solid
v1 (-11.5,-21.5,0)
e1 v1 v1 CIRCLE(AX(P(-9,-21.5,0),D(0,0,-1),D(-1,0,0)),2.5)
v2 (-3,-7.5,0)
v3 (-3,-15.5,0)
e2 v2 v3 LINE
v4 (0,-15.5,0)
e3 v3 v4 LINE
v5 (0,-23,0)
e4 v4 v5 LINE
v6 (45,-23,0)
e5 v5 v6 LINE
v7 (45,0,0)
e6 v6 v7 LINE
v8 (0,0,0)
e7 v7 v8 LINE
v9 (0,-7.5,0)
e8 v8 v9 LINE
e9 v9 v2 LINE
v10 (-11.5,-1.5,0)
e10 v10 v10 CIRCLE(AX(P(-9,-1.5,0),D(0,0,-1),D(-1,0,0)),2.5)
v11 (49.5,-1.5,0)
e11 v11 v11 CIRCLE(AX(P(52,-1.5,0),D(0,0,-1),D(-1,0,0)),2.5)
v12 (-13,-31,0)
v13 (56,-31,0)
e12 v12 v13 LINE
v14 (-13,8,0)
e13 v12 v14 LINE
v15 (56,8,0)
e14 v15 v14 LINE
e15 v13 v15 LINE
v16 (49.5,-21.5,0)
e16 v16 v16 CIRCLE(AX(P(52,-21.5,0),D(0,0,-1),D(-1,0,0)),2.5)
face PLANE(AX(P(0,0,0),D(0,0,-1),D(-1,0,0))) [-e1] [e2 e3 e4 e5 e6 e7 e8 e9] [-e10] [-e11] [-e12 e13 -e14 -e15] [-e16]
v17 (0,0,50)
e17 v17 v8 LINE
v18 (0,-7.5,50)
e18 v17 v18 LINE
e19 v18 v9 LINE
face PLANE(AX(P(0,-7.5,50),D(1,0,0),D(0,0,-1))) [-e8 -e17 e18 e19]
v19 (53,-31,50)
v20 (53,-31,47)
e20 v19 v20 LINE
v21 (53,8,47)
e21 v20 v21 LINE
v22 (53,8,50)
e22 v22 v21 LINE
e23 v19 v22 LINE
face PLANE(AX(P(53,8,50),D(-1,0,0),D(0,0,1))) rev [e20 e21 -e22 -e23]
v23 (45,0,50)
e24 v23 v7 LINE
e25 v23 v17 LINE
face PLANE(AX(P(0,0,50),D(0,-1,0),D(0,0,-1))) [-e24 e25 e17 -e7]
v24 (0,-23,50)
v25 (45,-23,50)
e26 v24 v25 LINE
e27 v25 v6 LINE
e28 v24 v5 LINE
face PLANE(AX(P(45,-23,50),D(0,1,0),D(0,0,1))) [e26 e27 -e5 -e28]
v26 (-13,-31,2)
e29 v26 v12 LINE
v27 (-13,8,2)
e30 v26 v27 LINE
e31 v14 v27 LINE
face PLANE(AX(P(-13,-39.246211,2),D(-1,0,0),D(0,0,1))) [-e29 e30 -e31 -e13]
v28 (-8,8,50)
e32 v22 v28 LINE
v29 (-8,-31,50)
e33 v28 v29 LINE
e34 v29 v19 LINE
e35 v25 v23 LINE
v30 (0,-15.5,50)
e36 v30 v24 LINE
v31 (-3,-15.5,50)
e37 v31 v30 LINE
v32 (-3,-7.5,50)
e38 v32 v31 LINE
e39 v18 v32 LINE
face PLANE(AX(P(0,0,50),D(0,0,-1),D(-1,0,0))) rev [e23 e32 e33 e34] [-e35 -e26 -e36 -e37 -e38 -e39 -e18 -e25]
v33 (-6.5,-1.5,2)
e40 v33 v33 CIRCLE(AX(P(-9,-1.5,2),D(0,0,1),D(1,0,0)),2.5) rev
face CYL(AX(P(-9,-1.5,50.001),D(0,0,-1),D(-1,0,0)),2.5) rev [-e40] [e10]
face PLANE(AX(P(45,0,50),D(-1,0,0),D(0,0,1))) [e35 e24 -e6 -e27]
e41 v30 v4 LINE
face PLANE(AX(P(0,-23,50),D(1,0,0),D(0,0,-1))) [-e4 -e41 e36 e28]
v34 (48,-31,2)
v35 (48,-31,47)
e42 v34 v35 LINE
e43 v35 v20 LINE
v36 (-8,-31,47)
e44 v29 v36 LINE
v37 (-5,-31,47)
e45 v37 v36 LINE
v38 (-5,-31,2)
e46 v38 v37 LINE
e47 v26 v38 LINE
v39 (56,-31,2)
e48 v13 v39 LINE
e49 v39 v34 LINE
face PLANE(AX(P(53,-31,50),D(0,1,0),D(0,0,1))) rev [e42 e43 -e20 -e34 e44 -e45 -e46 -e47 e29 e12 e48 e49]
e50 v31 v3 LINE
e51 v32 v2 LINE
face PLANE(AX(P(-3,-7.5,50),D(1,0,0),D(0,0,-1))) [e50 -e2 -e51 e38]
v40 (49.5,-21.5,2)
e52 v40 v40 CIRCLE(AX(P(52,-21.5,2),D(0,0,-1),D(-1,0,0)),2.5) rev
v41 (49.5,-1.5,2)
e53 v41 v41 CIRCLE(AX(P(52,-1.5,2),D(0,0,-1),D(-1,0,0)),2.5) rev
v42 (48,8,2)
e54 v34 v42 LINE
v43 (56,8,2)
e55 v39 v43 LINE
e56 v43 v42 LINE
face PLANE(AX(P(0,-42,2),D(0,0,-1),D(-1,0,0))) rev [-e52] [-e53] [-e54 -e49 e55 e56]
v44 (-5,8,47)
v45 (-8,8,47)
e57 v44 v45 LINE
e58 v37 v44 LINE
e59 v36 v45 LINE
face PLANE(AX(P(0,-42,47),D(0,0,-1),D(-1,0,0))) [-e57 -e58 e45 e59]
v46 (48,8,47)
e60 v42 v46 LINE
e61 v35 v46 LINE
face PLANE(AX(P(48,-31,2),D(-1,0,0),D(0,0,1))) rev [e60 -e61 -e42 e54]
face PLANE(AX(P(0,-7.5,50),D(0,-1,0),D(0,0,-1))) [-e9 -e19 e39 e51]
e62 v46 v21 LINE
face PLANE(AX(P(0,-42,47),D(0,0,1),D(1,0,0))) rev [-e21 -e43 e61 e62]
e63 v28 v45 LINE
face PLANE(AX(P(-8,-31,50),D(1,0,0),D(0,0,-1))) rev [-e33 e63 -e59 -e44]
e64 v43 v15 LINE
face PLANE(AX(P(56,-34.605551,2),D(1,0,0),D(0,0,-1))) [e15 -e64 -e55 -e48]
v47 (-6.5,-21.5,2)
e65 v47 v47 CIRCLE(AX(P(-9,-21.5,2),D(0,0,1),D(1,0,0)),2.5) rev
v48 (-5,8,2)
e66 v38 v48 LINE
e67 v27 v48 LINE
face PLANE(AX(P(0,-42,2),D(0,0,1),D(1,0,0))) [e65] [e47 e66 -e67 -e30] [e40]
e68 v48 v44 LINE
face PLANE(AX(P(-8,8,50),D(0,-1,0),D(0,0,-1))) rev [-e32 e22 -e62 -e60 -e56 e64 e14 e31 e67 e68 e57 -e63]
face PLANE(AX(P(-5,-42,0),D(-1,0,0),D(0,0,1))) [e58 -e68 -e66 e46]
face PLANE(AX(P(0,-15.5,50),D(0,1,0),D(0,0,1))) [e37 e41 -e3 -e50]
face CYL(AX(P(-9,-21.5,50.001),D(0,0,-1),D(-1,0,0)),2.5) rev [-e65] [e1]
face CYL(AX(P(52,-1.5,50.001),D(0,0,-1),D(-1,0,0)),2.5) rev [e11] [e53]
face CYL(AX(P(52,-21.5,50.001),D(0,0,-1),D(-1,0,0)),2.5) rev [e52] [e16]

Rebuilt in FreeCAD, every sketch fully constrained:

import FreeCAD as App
import Part
import Sketcher
Q = App.Units.Quantity


def add_polygon(sketch, points):
    """Adds a closed chain of lines whose ends are joined by coincident constraints."""
    first, n = sketch.GeometryCount, len(points)
    for a, b in zip(points, points[1:] + points[:1]):
        sketch.addGeometry(Part.LineSegment(App.Vector(*a, 0), App.Vector(*b, 0)), False)
    for i in range(n):
        sketch.addConstraint(Sketcher.Constraint("Coincident", first + i, 2, first + (i + 1) % n, 1))

doc = App.newDocument("Part")
body = doc.addObject("PartDesign::Body", "Body")

# Sketch on XY plane
sketch1 = body.newObject("Sketcher::SketchObject", "Sketch")
sketch1.AttachmentSupport = (doc.getObject("XY_Plane"), [""])
sketch1.MapMode = "FlatFace"
add_polygon(sketch1, [(53, 8), (-8, 8), (-8, -31), (53, -31)])  # lines 0-3
add_polygon(sketch1, [(0, 0), (45, 0), (45, -23), (0, -23), (0, -15.5), (-3, -15.5), (-3, -7.5), (0, -7.5)])  # lines 4-11
sketch1.addConstraint(Sketcher.Constraint("Horizontal", 0))
sketch1.addConstraint(Sketcher.Constraint("Vertical", 1))
sketch1.addConstraint(Sketcher.Constraint("Horizontal", 2))
sketch1.addConstraint(Sketcher.Constraint("Vertical", 3))
sketch1.addConstraint(Sketcher.Constraint("Horizontal", 4))
sketch1.addConstraint(Sketcher.Constraint("Vertical", 5))
sketch1.addConstraint(Sketcher.Constraint("Horizontal", 6))
sketch1.addConstraint(Sketcher.Constraint("Vertical", 7))
sketch1.addConstraint(Sketcher.Constraint("Horizontal", 8))
sketch1.addConstraint(Sketcher.Constraint("Vertical", 9))
sketch1.addConstraint(Sketcher.Constraint("Horizontal", 10))
sketch1.addConstraint(Sketcher.Constraint("Vertical", 11))
sketch1.addConstraint(Sketcher.Constraint("Coincident", 11, 2, -1, 1))
sketch1.addConstraint(Sketcher.Constraint("PointOnObject", 6, 2, -2))
sketch1.addConstraint(Sketcher.Constraint("Equal", 7, 11))
sketch1.addConstraint(Sketcher.Constraint("DistanceX", 0, 2, 0, 1, Q("61 mm")))
sketch1.addConstraint(Sketcher.Constraint("DistanceX", 4, 1, 4, 2, Q("45 mm")))
sketch1.addConstraint(Sketcher.Constraint("DistanceX", 8, 2, 8, 1, Q("3 mm")))
sketch1.addConstraint(Sketcher.Constraint("DistanceY", 1, 2, 1, 1, Q("39 mm")))
sketch1.addConstraint(Sketcher.Constraint("DistanceY", 5, 2, 5, 1, Q("23 mm")))
sketch1.addConstraint(Sketcher.Constraint("DistanceY", 9, 1, 9, 2, Q("8 mm")))
sketch1.addConstraint(Sketcher.Constraint("DistanceX", 0, 2, -1, 1, Q("8 mm")))
sketch1.addConstraint(Sketcher.Constraint("DistanceY", -1, 1, 0, 2, Q("8 mm")))
pad1 = body.newObject("PartDesign::Pad", "Pad")
pad1.Profile = sketch1
pad1.Length = 50

# Sketch on XZ plane
sketch2 = body.newObject("Sketcher::SketchObject", "Sketch001")
sketch2.AttachmentSupport = (doc.getObject("XZ_Plane"), [""])
sketch2.MapMode = "FlatFace"
sketch2.AttachmentOffset = App.Placement(App.Vector(0, 0, -8), App.Rotation())
add_polygon(sketch2, [(-8, 2), (-8, 47), (-5, 47), (-5, 2)])  # lines 0-3
add_polygon(sketch2, [(50, 2), (50, 47), (53, 47), (53, 2)])  # lines 4-7
sketch2.addConstraint(Sketcher.Constraint("Vertical", 0))
sketch2.addConstraint(Sketcher.Constraint("Horizontal", 1))
sketch2.addConstraint(Sketcher.Constraint("Vertical", 2))
sketch2.addConstraint(Sketcher.Constraint("Horizontal", 3))
sketch2.addConstraint(Sketcher.Constraint("Vertical", 4))
sketch2.addConstraint(Sketcher.Constraint("Horizontal", 5))
sketch2.addConstraint(Sketcher.Constraint("Vertical", 6))
sketch2.addConstraint(Sketcher.Constraint("Horizontal", 7))
sketch2.addConstraint(Sketcher.Constraint("Horizontal", 1, 2, 4, 2))
sketch2.addConstraint(Sketcher.Constraint("Horizontal", 3, 2, 6, 2))
sketch2.addConstraint(Sketcher.Constraint("Equal", 3, 5))
sketch2.addConstraint(Sketcher.Constraint("DistanceX", 1, 1, 1, 2, Q("3 mm")))
sketch2.addConstraint(Sketcher.Constraint("DistanceY", 0, 1, 0, 2, Q("45 mm")))
sketch2.addConstraint(Sketcher.Constraint("DistanceX", 0, 2, -1, 1, Q("8 mm")))
sketch2.addConstraint(Sketcher.Constraint("DistanceY", -1, 1, 0, 2, Q("47 mm")))
sketch2.addConstraint(Sketcher.Constraint("DistanceX", -1, 1, 4, 2, Q("50 mm")))
pocket1 = body.newObject("PartDesign::Pocket", "Pocket")
pocket1.Profile = sketch2
pocket1.Length = 50
pocket1.Reversed = True

# Sketch on XZ plane
sketch3 = body.newObject("Sketcher::SketchObject", "Sketch002")
sketch3.AttachmentSupport = (doc.getObject("XZ_Plane"), [""])
sketch3.MapMode = "FlatFace"
sketch3.AttachmentOffset = App.Placement(App.Vector(0, 0, -8), App.Rotation())
add_polygon(sketch3, [(48, 2), (48, 47), (50, 47), (50, 2)])  # lines 0-3
sketch3.addConstraint(Sketcher.Constraint("Vertical", 0))
sketch3.addConstraint(Sketcher.Constraint("Horizontal", 1))
sketch3.addConstraint(Sketcher.Constraint("Vertical", 2))
sketch3.addConstraint(Sketcher.Constraint("Horizontal", 3))
sketch3.addConstraint(Sketcher.Constraint("DistanceX", 1, 1, 1, 2, Q("2 mm")))
sketch3.addConstraint(Sketcher.Constraint("DistanceY", 0, 1, 0, 2, Q("45 mm")))
sketch3.addConstraint(Sketcher.Constraint("DistanceX", -1, 1, 0, 2, Q("48 mm")))
sketch3.addConstraint(Sketcher.Constraint("DistanceY", -1, 1, 0, 2, Q("47 mm")))
pocket2 = body.newObject("PartDesign::Pocket", "Pocket001")
pocket2.Profile = sketch3
pocket2.Type = "ThroughAll"
pocket2.Reversed = True

# Sketch on XZ plane
sketch4 = body.newObject("Sketcher::SketchObject", "Sketch003")
sketch4.AttachmentSupport = (doc.getObject("XZ_Plane"), [""])
sketch4.MapMode = "FlatFace"
sketch4.AttachmentOffset = App.Placement(App.Vector(0, 0, -8), App.Rotation())
add_polygon(sketch4, [(53, 0), (53, 2), (56, 2), (56, 0)])  # lines 0-3
sketch4.addConstraint(Sketcher.Constraint("Vertical", 0))
sketch4.addConstraint(Sketcher.Constraint("Horizontal", 1))
sketch4.addConstraint(Sketcher.Constraint("Vertical", 2))
sketch4.addConstraint(Sketcher.Constraint("Horizontal", 3))
sketch4.addConstraint(Sketcher.Constraint("PointOnObject", 2, 2, -1))
sketch4.addConstraint(Sketcher.Constraint("DistanceX", 1, 1, 1, 2, Q("3 mm")))
sketch4.addConstraint(Sketcher.Constraint("DistanceY", 0, 1, 0, 2, Q("2 mm")))
sketch4.addConstraint(Sketcher.Constraint("DistanceX", -1, 1, 0, 2, Q("53 mm")))
pad2 = body.newObject("PartDesign::Pad", "Pad001")
pad2.Profile = sketch4
pad2.Length = 39

# Sketch on XZ plane
sketch5 = body.newObject("Sketcher::SketchObject", "Sketch004")
sketch5.AttachmentSupport = (doc.getObject("XZ_Plane"), [""])
sketch5.MapMode = "FlatFace"
sketch5.AttachmentOffset = App.Placement(App.Vector(0, 0, -8), App.Rotation())
add_polygon(sketch5, [(-13, 0), (-13, 2), (-5, 2), (-5, 0)])  # lines 0-3
sketch5.addConstraint(Sketcher.Constraint("Vertical", 0))
sketch5.addConstraint(Sketcher.Constraint("Horizontal", 1))
sketch5.addConstraint(Sketcher.Constraint("Vertical", 2))
sketch5.addConstraint(Sketcher.Constraint("Horizontal", 3))
sketch5.addConstraint(Sketcher.Constraint("PointOnObject", 2, 2, -1))
sketch5.addConstraint(Sketcher.Constraint("DistanceX", 1, 1, 1, 2, Q("8 mm")))
sketch5.addConstraint(Sketcher.Constraint("DistanceY", 0, 1, 0, 2, Q("2 mm")))
sketch5.addConstraint(Sketcher.Constraint("DistanceX", 0, 2, -1, 1, Q("13 mm")))
pad3 = body.newObject("PartDesign::Pad", "Pad002")
pad3.Profile = sketch5
pad3.Length = 39

# Sketch on XY plane
sketch6 = body.newObject("Sketcher::SketchObject", "Sketch005")
sketch6.AttachmentSupport = (doc.getObject("XY_Plane"), [""])
sketch6.MapMode = "FlatFace"
sketch6.addGeometry(Part.Circle(App.Vector(52, -1.5, 0), App.Vector(0, 0, 1), 2.5), False)
sketch6.addConstraint(Sketcher.Constraint("Diameter", 0, Q("5 mm")))
sketch6.addConstraint(Sketcher.Constraint("DistanceX", -1, 1, 0, 3, Q("52 mm")))
sketch6.addConstraint(Sketcher.Constraint("DistanceY", 0, 3, -1, 1, Q("1.5 mm")))
pocket3 = body.newObject("PartDesign::Pocket", "Pocket002")
pocket3.Profile = sketch6
pocket3.Type = "UpToFirst"
pocket3.Reversed = True

# Sketch on XY plane
sketch7 = body.newObject("Sketcher::SketchObject", "Sketch006")
sketch7.AttachmentSupport = (doc.getObject("XY_Plane"), [""])
sketch7.MapMode = "FlatFace"
sketch7.addGeometry(Part.Circle(App.Vector(52, -21.5, 0), App.Vector(0, 0, 1), 2.5), False)
sketch7.addConstraint(Sketcher.Constraint("Diameter", 0, Q("5 mm")))
sketch7.addConstraint(Sketcher.Constraint("DistanceX", -1, 1, 0, 3, Q("52 mm")))
sketch7.addConstraint(Sketcher.Constraint("DistanceY", 0, 3, -1, 1, Q("21.5 mm")))
pocket4 = body.newObject("PartDesign::Pocket", "Pocket003")
pocket4.Profile = sketch7
pocket4.Type = "UpToFirst"
pocket4.Reversed = True

# Sketch on XY plane
sketch8 = body.newObject("Sketcher::SketchObject", "Sketch007")
sketch8.AttachmentSupport = (doc.getObject("XY_Plane"), [""])
sketch8.MapMode = "FlatFace"
sketch8.addGeometry(Part.Circle(App.Vector(-9, -21.5, 0), App.Vector(0, 0, 1), 2.5), False)
sketch8.addConstraint(Sketcher.Constraint("Diameter", 0, Q("5 mm")))
sketch8.addConstraint(Sketcher.Constraint("DistanceX", 0, 3, -1, 1, Q("9 mm")))
sketch8.addConstraint(Sketcher.Constraint("DistanceY", 0, 3, -1, 1, Q("21.5 mm")))
pocket5 = body.newObject("PartDesign::Pocket", "Pocket004")
pocket5.Profile = sketch8
pocket5.Type = "UpToFirst"
pocket5.Reversed = True

# Sketch on XY plane
sketch9 = body.newObject("Sketcher::SketchObject", "Sketch008")
sketch9.AttachmentSupport = (doc.getObject("XY_Plane"), [""])
sketch9.MapMode = "FlatFace"
sketch9.addGeometry(Part.Circle(App.Vector(-9, -1.5, 0), App.Vector(0, 0, 1), 2.5), False)
sketch9.addConstraint(Sketcher.Constraint("Diameter", 0, Q("5 mm")))
sketch9.addConstraint(Sketcher.Constraint("DistanceX", 0, 3, -1, 1, Q("9 mm")))
sketch9.addConstraint(Sketcher.Constraint("DistanceY", 0, 3, -1, 1, Q("1.5 mm")))
pocket6 = body.newObject("PartDesign::Pocket", "Pocket005")
pocket6.Profile = sketch9
pocket6.Type = "UpToFirst"
pocket6.Reversed = True

doc.recompute()
